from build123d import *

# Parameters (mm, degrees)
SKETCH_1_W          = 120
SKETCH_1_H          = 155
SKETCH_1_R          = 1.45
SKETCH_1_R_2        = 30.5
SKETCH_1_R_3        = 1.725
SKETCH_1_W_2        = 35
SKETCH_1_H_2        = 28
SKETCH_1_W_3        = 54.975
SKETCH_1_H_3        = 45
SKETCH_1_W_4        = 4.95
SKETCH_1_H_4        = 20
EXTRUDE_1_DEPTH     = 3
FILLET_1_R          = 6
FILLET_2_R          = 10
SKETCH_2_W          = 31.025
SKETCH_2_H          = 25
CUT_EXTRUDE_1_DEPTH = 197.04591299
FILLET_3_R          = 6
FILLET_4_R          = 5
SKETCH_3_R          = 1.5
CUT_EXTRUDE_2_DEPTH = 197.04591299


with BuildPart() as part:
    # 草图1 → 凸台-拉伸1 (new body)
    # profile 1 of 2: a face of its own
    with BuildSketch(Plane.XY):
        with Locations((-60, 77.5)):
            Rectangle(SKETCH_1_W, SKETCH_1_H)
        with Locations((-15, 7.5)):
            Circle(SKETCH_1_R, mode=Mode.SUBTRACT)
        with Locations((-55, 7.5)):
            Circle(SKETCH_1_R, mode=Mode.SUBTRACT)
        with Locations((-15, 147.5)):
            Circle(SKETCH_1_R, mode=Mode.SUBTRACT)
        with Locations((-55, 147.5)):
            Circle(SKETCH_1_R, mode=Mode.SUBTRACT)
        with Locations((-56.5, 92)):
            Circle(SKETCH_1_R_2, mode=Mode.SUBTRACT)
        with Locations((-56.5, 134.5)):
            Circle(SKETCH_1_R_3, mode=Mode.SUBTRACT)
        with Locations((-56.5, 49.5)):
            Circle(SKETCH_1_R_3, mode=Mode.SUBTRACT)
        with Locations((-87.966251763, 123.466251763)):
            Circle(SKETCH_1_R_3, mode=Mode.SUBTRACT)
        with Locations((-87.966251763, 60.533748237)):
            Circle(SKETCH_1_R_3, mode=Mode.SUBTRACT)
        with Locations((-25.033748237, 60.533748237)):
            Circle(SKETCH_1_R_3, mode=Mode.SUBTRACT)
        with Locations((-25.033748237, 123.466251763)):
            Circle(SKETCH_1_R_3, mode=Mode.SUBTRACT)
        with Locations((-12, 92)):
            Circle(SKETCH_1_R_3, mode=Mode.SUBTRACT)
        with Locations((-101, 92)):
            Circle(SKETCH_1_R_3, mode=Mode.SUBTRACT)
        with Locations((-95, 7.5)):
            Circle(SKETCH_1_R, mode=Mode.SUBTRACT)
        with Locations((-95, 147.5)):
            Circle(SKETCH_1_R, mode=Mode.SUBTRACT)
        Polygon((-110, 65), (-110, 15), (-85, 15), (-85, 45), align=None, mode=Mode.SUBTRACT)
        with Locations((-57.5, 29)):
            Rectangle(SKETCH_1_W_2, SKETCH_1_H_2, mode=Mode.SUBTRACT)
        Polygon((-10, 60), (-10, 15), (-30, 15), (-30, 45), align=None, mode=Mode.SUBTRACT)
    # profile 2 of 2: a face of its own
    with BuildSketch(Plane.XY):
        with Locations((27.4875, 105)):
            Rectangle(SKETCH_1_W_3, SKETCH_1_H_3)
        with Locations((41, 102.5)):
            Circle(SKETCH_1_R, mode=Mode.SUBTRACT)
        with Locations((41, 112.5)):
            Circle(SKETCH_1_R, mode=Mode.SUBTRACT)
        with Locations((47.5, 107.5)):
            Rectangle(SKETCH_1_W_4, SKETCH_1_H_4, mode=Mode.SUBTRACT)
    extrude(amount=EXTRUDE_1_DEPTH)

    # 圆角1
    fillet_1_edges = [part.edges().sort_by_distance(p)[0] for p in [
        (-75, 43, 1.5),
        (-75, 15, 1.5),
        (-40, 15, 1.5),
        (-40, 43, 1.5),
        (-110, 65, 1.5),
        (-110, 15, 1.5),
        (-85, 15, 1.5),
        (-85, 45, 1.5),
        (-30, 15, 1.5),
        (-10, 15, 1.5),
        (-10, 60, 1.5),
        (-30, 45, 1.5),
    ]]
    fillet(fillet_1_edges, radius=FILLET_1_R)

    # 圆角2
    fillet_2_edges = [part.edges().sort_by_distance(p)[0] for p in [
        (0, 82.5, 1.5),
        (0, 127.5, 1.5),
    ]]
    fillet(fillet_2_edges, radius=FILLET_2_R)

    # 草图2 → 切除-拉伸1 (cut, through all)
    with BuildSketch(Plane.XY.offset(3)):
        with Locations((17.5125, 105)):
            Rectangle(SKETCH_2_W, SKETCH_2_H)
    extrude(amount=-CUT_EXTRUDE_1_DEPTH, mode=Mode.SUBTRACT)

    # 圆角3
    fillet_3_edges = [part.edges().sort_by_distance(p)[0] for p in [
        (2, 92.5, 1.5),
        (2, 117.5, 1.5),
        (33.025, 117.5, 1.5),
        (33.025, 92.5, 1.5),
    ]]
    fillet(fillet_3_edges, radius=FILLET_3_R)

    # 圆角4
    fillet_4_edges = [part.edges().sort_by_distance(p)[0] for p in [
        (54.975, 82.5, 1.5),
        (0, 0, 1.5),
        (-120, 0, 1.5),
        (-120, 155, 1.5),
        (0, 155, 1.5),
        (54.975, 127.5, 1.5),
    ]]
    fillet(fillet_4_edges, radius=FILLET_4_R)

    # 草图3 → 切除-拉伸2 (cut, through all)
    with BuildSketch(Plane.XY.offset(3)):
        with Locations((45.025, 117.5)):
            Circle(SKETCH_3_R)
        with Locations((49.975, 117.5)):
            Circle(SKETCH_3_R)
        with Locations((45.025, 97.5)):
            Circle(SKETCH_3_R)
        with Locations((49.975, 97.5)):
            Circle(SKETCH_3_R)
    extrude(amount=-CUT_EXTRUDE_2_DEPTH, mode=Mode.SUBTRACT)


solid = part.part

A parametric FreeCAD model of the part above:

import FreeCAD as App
import Part
import Sketcher

V = App.Vector
Q = App.Units.Quantity


def edges_at(feature, points):
    """Names of the edges that pass closest to the given points."""
    edges = feature.Shape.Edges
    near = lambda p: min(range(len(edges)), key=lambda i: edges[i].distToShape(Part.Vertex(*p))[0])
    return sorted({f"Edge{near(p) + 1}" for p in points})

doc = App.newDocument("Part")
body = doc.addObject("PartDesign::Body", "Body")

# Sketch on XY plane
sketch1 = body.newObject("Sketcher::SketchObject", "Sketch")
sketch1.AttachmentSupport = (doc.getObject("XY_Plane"), [""])
sketch1.MapMode = "FlatFace"
sketch1.addGeometry([
    Part.LineSegment(V(-120, 155, 0), V(-120, 0, 0)),  # 0
    Part.LineSegment(V(-120, 0, 0), V(0, 0, 0)),  # 1
    Part.LineSegment(V(0, 0, 0), V(0, 82.5, 0)),  # 2
    Part.LineSegment(V(0, 82.5, 0), V(55, 82.5, 0)),  # 3
    Part.LineSegment(V(55, 82.5, 0), V(55, 127.5, 0)),  # 4
    Part.LineSegment(V(55, 127.5, 0), V(0, 127.5, 0)),  # 5
    Part.LineSegment(V(0, 127.5, 0), V(0, 155, 0)),  # 6
    Part.LineSegment(V(0, 155, 0), V(-120, 155, 0)),  # 7
    Part.Circle(V(-95, 7.5, 0), V(0, 0, 1), 1.4),  # 8
    Part.LineSegment(V(-110, 15, 0), V(-110, 65, 0)),  # 9
    Part.LineSegment(V(-110, 65, 0), V(-85, 45, 0)),  # 10
    Part.LineSegment(V(-85, 45, 0), V(-85, 15, 0)),  # 11
    Part.LineSegment(V(-85, 15, 0), V(-110, 15, 0)),  # 12
    Part.Circle(V(-88, 60.5, 0), V(0, 0, 1), 1.7),  # 13
    Part.Circle(V(-55, 7.5, 0), V(0, 0, 1), 1.4),  # 14
    Part.LineSegment(V(-40, 15, 0), V(-75, 15, 0)),  # 15
    Part.LineSegment(V(-75, 15, 0), V(-75, 43, 0)),  # 16
    Part.LineSegment(V(-75, 43, 0), V(-40, 43, 0)),  # 17
    Part.LineSegment(V(-40, 43, 0), V(-40, 15, 0)),  # 18
    Part.Circle(V(-15, 7.5, 0), V(0, 0, 1), 1.4),  # 19
    Part.LineSegment(V(-30, 45, 0), V(-10, 60, 0)),  # 20
    Part.LineSegment(V(-10, 60, 0), V(-10, 15, 0)),  # 21
    Part.LineSegment(V(-10, 15, 0), V(-30, 15, 0)),  # 22
    Part.LineSegment(V(-30, 15, 0), V(-30, 45, 0)),  # 23
    Part.Circle(V(-56.5, 49.5, 0), V(0, 0, 1), 1.7),  # 24
    Part.Circle(V(-25, 60.5, 0), V(0, 0, 1), 1.7),  # 25
    Part.Circle(V(-101, 92, 0), V(0, 0, 1), 1.7),  # 26
    Part.Circle(V(-88, 123.5, 0), V(0, 0, 1), 1.7),  # 27
    Part.Circle(V(-95, 147.5, 0), V(0, 0, 1), 1.4),  # 28
    Part.Circle(V(-56.5, 92, 0), V(0, 0, 1), 30.5),  # 29
    Part.Circle(V(-12, 92, 0), V(0, 0, 1), 1.7),  # 30
    Part.Circle(V(-56.5, 134.5, 0), V(0, 0, 1), 1.7),  # 31
    Part.Circle(V(-55, 147.5, 0), V(0, 0, 1), 1.4),  # 32
    Part.Circle(V(-25, 123.5, 0), V(0, 0, 1), 1.7),  # 33
    Part.Circle(V(-15, 147.5, 0), V(0, 0, 1), 1.4),  # 34
    Part.LineSegment(V(45, 97.5, 0), V(45, 117.5, 0)),  # 35
    Part.LineSegment(V(45, 117.5, 0), V(50, 117.5, 0)),  # 36
    Part.LineSegment(V(50, 117.5, 0), V(50, 97.5, 0)),  # 37
    Part.LineSegment(V(50, 97.5, 0), V(45, 97.5, 0)),  # 38
    Part.Circle(V(41, 102.5, 0), V(0, 0, 1), 1.4),  # 39
    Part.Circle(V(41, 112.5, 0), V(0, 0, 1), 1.4),  # 40
], False)
sketch1.addConstraint([
    Sketcher.Constraint("Coincident", 0, 2, 1, 1),
    Sketcher.Constraint("Coincident", 1, 2, 2, 1),
    Sketcher.Constraint("Coincident", 2, 2, 3, 1),
    Sketcher.Constraint("Coincident", 3, 2, 4, 1),
    Sketcher.Constraint("Coincident", 4, 2, 5, 1),
    Sketcher.Constraint("Coincident", 5, 2, 6, 1),
    Sketcher.Constraint("Coincident", 6, 2, 7, 1),
    Sketcher.Constraint("Coincident", 7, 2, 0, 1),
    Sketcher.Constraint("Coincident", 9, 2, 10, 1),
    Sketcher.Constraint("Coincident", 10, 2, 11, 1),
    Sketcher.Constraint("Coincident", 11, 2, 12, 1),
    Sketcher.Constraint("Coincident", 12, 2, 9, 1),
    Sketcher.Constraint("Coincident", 15, 2, 16, 1),
    Sketcher.Constraint("Coincident", 16, 2, 17, 1),
    Sketcher.Constraint("Coincident", 17, 2, 18, 1),
    Sketcher.Constraint("Coincident", 18, 2, 15, 1),
    Sketcher.Constraint("Coincident", 20, 2, 21, 1),
    Sketcher.Constraint("Coincident", 21, 2, 22, 1),
    Sketcher.Constraint("Coincident", 22, 2, 23, 1),
    Sketcher.Constraint("Coincident", 23, 2, 20, 1),
    Sketcher.Constraint("Coincident", 35, 2, 36, 1),
    Sketcher.Constraint("Coincident", 36, 2, 37, 1),
    Sketcher.Constraint("Coincident", 37, 2, 38, 1),
    Sketcher.Constraint("Coincident", 38, 2, 35, 1),
    Sketcher.Constraint("Vertical", 0),
    Sketcher.Constraint("Horizontal", 1),
    Sketcher.Constraint("Vertical", 2),
    Sketcher.Constraint("Horizontal", 3),
    Sketcher.Constraint("Vertical", 4),
    Sketcher.Constraint("Horizontal", 5),
    Sketcher.Constraint("Vertical", 6),
    Sketcher.Constraint("Horizontal", 7),
    Sketcher.Constraint("Vertical", 9),
    Sketcher.Constraint("Vertical", 11),
    Sketcher.Constraint("Horizontal", 12),
    Sketcher.Constraint("Horizontal", 15),
    Sketcher.Constraint("Vertical", 16),
    Sketcher.Constraint("Horizontal", 17),
    Sketcher.Constraint("Vertical", 18),
    Sketcher.Constraint("Vertical", 21),
    Sketcher.Constraint("Horizontal", 22),
    Sketcher.Constraint("Vertical", 23),
    Sketcher.Constraint("Vertical", 35),
    Sketcher.Constraint("Horizontal", 36),
    Sketcher.Constraint("Vertical", 37),
    Sketcher.Constraint("Horizontal", 38),
    Sketcher.Constraint("Coincident", 1, 2, -1, 1),
    Sketcher.Constraint("Equal", 8, 14),
    Sketcher.Constraint("Equal", 14, 19),
    Sketcher.Constraint("Equal", 13, 24),
    Sketcher.Constraint("Equal", 24, 25),
    Sketcher.Constraint("Equal", 25, 26),
    Sketcher.Constraint("Equal", 26, 27),
    Sketcher.Constraint("Equal", 19, 28),
    Sketcher.Constraint("Equal", 27, 30),
    Sketcher.Constraint("Equal", 30, 31),
    Sketcher.Constraint("Equal", 28, 32),
    Sketcher.Constraint("Equal", 31, 33),
    Sketcher.Constraint("Equal", 32, 34),
    Sketcher.Constraint("Equal", 34, 39),
    Sketcher.Constraint("Equal", 39, 40),
    Sketcher.Constraint("PointOnObject", 5, 2, -2),
    Sketcher.Constraint("Horizontal", 8, 3, 14, 3),
    Sketcher.Constraint("Horizontal", 14, 3, 19, 3),
    Sketcher.Constraint("Horizontal", 13, 3, 25, 3),
    Sketcher.Constraint("Horizontal", 26, 3, 29, 3),
    Sketcher.Constraint("Horizontal", 29, 3, 30, 3),
    Sketcher.Constraint("Horizontal", 28, 3, 32, 3),
    Sketcher.Constraint("Horizontal", 27, 3, 33, 3),
    Sketcher.Constraint("Horizontal", 32, 3, 34, 3),
    Sketcher.Constraint("Horizontal", 12, 2, 15, 2),
    Sketcher.Constraint("Horizontal", 18, 2, 21, 2),
    Sketcher.Constraint("Horizontal", 10, 2, 23, 2),
    Sketcher.Constraint("Vertical", 13, 3, 27, 3),
    Sketcher.Constraint("Vertical", 8, 3, 28, 3),
    Sketcher.Constraint("Vertical", 24, 3, 29, 3),
    Sketcher.Constraint("Vertical", 29, 3, 31, 3),
    Sketcher.Constraint("Vertical", 14, 3, 32, 3),
    Sketcher.Constraint("Vertical", 25, 3, 33, 3),
    Sketcher.Constraint("Vertical", 19, 3, 34, 3),
    Sketcher.Constraint("Vertical", 39, 3, 40, 3),
    Sketcher.Constraint("Equal", 4, 21),
    Sketcher.Constraint("Equal", 22, 35),
    Sketcher.Constraint("Diameter", 29, Q("61 mm")),
    Sketcher.Constraint("Diameter", 8, Q("2.9 mm")),
    Sketcher.Constraint("Diameter", 13, Q("3.45 mm")),
    Sketcher.Constraint("DistanceX", 1, 1, 1, 2, Q("120 mm")),
    Sketcher.Constraint("DistanceX", 12, 2, 12, 1, Q("25 mm")),
    Sketcher.Constraint("DistanceX", 15, 2, 15, 1, Q("35 mm")),
    Sketcher.Constraint("DistanceX", 22, 2, 22, 1, Q("20 mm")),
    Sketcher.Constraint("DistanceY", 0, 2, 0, 1, Q("155 mm")),
    Sketcher.Constraint("DistanceY", 4, 1, 4, 2, Q("45 mm")),
    Sketcher.Constraint("DistanceY", 9, 1, 9, 2, Q("50 mm")),
    Sketcher.Constraint("DistanceY", 11, 2, 11, 1, Q("30 mm")),
    Sketcher.Constraint("DistanceY", 16, 1, 16, 2, Q("28 mm")),
    Sketcher.Constraint("DistanceY", 2, 1, 2, 2, Q("82.5 mm")),
    Sketcher.Constraint("DistanceX", 8, 3, -1, 1, Q("95 mm")),
    Sketcher.Constraint("DistanceX", 14, 3, -1, 1, Q("55 mm")),
    Sketcher.Constraint("DistanceX", 19, 3, -1, 1, Q("15 mm")),
    Sketcher.Constraint("DistanceX", 26, 3, -1, 1, Q("101 mm")),
    Sketcher.Constraint("DistanceY", -1, 1, 26, 3, Q("92 mm")),
    Sketcher.Constraint("DistanceX", 30, 3, -1, 1, Q("12 mm")),
    Sketcher.Constraint("DistanceX", -1, 1, 39, 3, Q("41 mm")),
    Sketcher.Constraint("DistanceX", 9, 2, -1, 1, Q("110 mm")),
    Sketcher.Constraint("DistanceY", -1, 1, 9, 2, Q("65 mm")),
    Sketcher.Constraint("DistanceX", 15, 2, -1, 1, Q("75 mm")),
    Sketcher.Constraint("DistanceX", 20, 2, -1, 1, Q("10 mm")),
    Sketcher.Constraint("DistanceY", 14, 3, 24, 3, Q("42 mm")),
    Sketcher.Constraint("DistanceY", 24, 3, 28, 3, Q("98 mm")),
    Sketcher.Constraint("DistanceY", 31, 3, 28, 3, Q("13 mm")),
    Sketcher.Constraint("DistanceY", 39, 3, 34, 3, Q("45 mm")),
    Sketcher.Constraint("DistanceY", 39, 3, 40, 3, Q("10 mm")),
    Sketcher.Constraint("DistanceY", 2, 2, 39, 3, Q("20 mm")),
    Sketcher.Constraint("DistanceY", 40, 3, 35, 2, Q("5 mm")),
    Sketcher.Constraint("DistanceX", 36, 2, 4, 2, Q("5 mm")),
    Sketcher.Constraint("DistanceX", 36, 1, 36, 2, Q("4.95 mm")),
    Sketcher.Constraint("DistanceX", 24, 3, -1, 1, Q("56.5 mm")),
    Sketcher.Constraint("DistanceX", 3, 1, 3, 2, Q("54.975 mm")),
    Sketcher.Constraint("DistanceX", 13, 3, -1, 1, Q("87.966252 mm")),
    Sketcher.Constraint("DistanceY", -1, 1, 13, 3, Q("60.533748 mm")),
    Sketcher.Constraint("DistanceX", 25, 3, -1, 1, Q("25.033748 mm")),
    Sketcher.Constraint("DistanceY", -1, 1, 27, 3, Q("123.466252 mm")),
])
pad1 = body.newObject("PartDesign::Pad", "Pad")
pad1.Profile = sketch1
pad1.Length = 3
doc.recompute()

fillet = body.newObject("PartDesign::Fillet", "Fillet")
fillet.Base = (pad1, edges_at(pad1, [
    (-75, 43, 1.5),
    (-75, 15, 1.5),
    (-40, 15, 1.5),
    (-40, 43, 1.5),
    (-110, 65, 1.5),
    (-110, 15, 1.5),
    (-85, 15, 1.5),
    (-85, 45, 1.5),
    (-30, 15, 1.5),
    (-10, 15, 1.5),
    (-10, 60, 1.5),
    (-30, 45, 1.5),
]))
fillet.Radius = 6
doc.recompute()

fillet2 = body.newObject("PartDesign::Fillet", "Fillet001")
fillet2.Base = (fillet, edges_at(fillet, [(0, 82.5, 1.5), (0, 127.5, 1.5)]))
fillet2.Radius = 10

# Sketch on XY plane
sketch2 = body.newObject("Sketcher::SketchObject", "Sketch001")
sketch2.AttachmentSupport = (doc.getObject("XY_Plane"), [""])
sketch2.MapMode = "FlatFace"
sketch2.AttachmentOffset = App.Placement(V(0, 0, 3), App.Rotation())
sketch2.addGeometry([
    Part.LineSegment(V(2, 118, 0), V(2, 92, 0)),
    Part.LineSegment(V(2, 92, 0), V(33, 92, 0)),
    Part.LineSegment(V(33, 92, 0), V(33, 118, 0)),
    Part.LineSegment(V(33, 118, 0), V(2, 118, 0)),
], False)
sketch2.addConstraint([
    Sketcher.Constraint("Coincident", 0, 2, 1, 1),
    Sketcher.Constraint("Coincident", 1, 2, 2, 1),
    Sketcher.Constraint("Coincident", 2, 2, 3, 1),
    Sketcher.Constraint("Coincident", 3, 2, 0, 1),
    Sketcher.Constraint("Vertical", 0),
    Sketcher.Constraint("Horizontal", 1),
    Sketcher.Constraint("Vertical", 2),
    Sketcher.Constraint("Horizontal", 3),
    Sketcher.Constraint("DistanceY", 0, 2, 0, 1, Q("25 mm")),
    Sketcher.Constraint("DistanceX", -1, 1, 0, 2, Q("2 mm")),
    Sketcher.Constraint("DistanceY", -1, 1, 0, 2, Q("92.5 mm")),
    Sketcher.Constraint("DistanceX", 1, 1, 1, 2, Q("31.025 mm")),
])
pocket1 = body.newObject("PartDesign::Pocket", "Pocket")
pocket1.Profile = sketch2
pocket1.Type = "ThroughAll"
doc.recompute()

fillet3 = body.newObject("PartDesign::Fillet", "Fillet002")
fillet3.Base = (pocket1, edges_at(pocket1, [
    (2, 92.5, 1.5),
    (2, 117.5, 1.5),
    (33.025, 117.5, 1.5),
    (33.025, 92.5, 1.5),
]))
fillet3.Radius = 6
doc.recompute()

fillet4 = body.newObject("PartDesign::Fillet", "Fillet003")
fillet4.Base = (fillet3, edges_at(fillet3, [
    (54.975, 82.5, 1.5),
    (0, 0, 1.5),
    (-120, 0, 1.5),
    (-120, 155, 1.5),
    (0, 155, 1.5),
    (54.975, 127.5, 1.5),
]))
fillet4.Radius = 5

# Sketch on XY plane
sketch3 = body.newObject("Sketcher::SketchObject", "Sketch002")
sketch3.AttachmentSupport = (doc.getObject("XY_Plane"), [""])
sketch3.MapMode = "FlatFace"
sketch3.AttachmentOffset = App.Placement(V(0, 0, 3), App.Rotation())
sketch3.addGeometry([
    Part.Circle(V(45, 117.5, 0), V(0, 0, 1), 1.5),
    Part.Circle(V(50, 117.5, 0), V(0, 0, 1), 1.5),
    Part.Circle(V(45, 97.5, 0), V(0, 0, 1), 1.5),
    Part.Circle(V(50, 97.5, 0), V(0, 0, 1), 1.5),
], False)
sketch3.addConstraint([
    Sketcher.Constraint("Equal", 0, 1),
    Sketcher.Constraint("Equal", 1, 2),
    Sketcher.Constraint("Equal", 2, 3),
    Sketcher.Constraint("Horizontal", 0, 3, 1, 3),
    Sketcher.Constraint("Horizontal", 2, 3, 3, 3),
    Sketcher.Constraint("Vertical", 0, 3, 2, 3),
    Sketcher.Constraint("Vertical", 1, 3, 3, 3),
    Sketcher.Constraint("Diameter", 0, Q("3 mm")),
    Sketcher.Constraint("DistanceY", 2, 3, 0, 3, Q("20 mm")),
    Sketcher.Constraint("DistanceY", -1, 1, 0, 3, Q("117.5 mm")),
    Sketcher.Constraint("DistanceX", 0, 3, 1, 3, Q("4.95 mm")),
    Sketcher.Constraint("DistanceX", -1, 1, 0, 3, Q("45.025 mm")),
])
pocket2 = body.newObject("PartDesign::Pocket", "Pocket001")
pocket2.Profile = sketch3
pocket2.Type = "ThroughAll"

doc.recompute()
